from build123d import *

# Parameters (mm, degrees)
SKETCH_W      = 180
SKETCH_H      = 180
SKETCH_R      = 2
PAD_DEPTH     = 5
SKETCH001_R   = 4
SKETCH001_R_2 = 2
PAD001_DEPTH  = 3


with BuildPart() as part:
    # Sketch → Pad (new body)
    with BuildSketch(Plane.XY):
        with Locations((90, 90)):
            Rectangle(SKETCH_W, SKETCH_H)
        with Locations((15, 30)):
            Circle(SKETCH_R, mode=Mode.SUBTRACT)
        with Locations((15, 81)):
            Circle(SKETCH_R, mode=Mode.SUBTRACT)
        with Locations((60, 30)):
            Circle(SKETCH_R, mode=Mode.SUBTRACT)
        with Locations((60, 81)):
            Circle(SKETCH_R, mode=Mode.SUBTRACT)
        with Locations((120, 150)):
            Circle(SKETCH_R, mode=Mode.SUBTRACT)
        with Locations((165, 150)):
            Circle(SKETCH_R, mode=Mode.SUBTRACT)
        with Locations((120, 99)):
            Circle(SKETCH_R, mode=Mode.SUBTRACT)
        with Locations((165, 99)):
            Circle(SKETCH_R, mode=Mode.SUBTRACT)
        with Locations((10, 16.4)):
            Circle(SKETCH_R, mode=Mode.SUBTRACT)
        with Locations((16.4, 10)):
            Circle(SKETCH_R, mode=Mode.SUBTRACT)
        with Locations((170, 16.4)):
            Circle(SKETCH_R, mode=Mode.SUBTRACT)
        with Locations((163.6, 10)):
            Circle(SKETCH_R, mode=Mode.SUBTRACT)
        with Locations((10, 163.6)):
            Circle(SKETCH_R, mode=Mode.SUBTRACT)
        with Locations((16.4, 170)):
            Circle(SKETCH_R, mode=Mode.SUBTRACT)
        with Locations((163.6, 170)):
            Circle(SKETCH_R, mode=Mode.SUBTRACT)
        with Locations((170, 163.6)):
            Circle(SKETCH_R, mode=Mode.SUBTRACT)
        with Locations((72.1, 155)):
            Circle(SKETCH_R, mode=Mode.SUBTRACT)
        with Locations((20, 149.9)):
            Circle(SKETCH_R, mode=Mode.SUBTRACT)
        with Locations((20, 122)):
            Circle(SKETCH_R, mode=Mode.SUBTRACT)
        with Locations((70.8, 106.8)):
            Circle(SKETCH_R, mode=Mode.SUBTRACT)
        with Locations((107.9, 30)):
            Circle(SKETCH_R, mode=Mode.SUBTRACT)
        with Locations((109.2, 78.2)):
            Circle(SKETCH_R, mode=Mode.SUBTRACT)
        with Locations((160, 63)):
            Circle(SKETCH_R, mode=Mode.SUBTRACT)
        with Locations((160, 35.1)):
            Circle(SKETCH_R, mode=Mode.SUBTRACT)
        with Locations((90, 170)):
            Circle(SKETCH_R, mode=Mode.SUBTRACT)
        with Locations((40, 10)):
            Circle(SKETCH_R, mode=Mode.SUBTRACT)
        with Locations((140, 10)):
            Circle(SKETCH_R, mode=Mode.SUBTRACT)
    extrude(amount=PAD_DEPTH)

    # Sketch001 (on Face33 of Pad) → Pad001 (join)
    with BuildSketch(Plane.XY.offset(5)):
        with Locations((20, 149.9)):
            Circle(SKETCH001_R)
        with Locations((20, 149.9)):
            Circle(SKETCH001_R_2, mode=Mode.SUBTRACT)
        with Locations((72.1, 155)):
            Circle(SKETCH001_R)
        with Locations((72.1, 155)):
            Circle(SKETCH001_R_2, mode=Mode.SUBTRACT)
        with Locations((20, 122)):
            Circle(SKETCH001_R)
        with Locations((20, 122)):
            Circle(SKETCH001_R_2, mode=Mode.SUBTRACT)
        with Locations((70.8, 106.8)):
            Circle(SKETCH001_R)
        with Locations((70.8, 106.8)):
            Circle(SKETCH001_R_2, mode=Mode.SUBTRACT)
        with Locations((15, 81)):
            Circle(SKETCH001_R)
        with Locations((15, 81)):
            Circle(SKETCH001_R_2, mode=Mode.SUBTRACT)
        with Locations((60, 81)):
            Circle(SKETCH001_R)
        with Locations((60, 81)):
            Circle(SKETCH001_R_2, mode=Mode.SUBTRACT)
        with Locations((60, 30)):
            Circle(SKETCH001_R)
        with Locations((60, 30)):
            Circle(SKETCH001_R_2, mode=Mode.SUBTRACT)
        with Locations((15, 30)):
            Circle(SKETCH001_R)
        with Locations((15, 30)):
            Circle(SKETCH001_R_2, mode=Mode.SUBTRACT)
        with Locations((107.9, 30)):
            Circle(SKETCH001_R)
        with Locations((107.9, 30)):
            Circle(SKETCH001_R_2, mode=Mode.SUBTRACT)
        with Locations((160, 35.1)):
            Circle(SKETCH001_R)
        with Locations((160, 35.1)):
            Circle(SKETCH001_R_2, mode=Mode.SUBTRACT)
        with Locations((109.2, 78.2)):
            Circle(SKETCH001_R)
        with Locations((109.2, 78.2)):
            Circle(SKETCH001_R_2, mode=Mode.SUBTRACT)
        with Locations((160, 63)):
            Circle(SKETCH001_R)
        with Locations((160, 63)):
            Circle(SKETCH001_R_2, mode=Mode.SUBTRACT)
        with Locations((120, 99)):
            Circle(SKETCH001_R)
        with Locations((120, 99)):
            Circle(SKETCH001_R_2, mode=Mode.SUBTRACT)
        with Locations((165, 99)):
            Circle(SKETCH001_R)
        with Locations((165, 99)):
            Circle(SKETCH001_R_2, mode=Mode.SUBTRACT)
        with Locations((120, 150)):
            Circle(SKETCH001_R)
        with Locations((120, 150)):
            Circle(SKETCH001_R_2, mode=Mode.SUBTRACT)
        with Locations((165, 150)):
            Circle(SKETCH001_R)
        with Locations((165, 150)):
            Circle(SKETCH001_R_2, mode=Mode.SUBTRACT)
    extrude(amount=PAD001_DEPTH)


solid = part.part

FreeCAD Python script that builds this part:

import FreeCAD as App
import Part
import Sketcher

V = App.Vector
Q = App.Units.Quantity

doc = App.newDocument("Part")
body = doc.addObject("PartDesign::Body", "Body")

# Sketch on XY plane
sketch1 = body.newObject("Sketcher::SketchObject", "Sketch")
sketch1.AttachmentSupport = (doc.getObject("XY_Plane"), [""])
sketch1.MapMode = "FlatFace"
sketch1.addGeometry(Part.LineSegment(V(0, 180, 0), V(0, 0, 0)), False)
sketch1.addGeometry(Part.LineSegment(V(0, 0, 0), V(180, 0, 0)), False)
sketch1.addGeometry(Part.LineSegment(V(180, 0, 0), V(180, 180, 0)), False)
sketch1.addGeometry(Part.LineSegment(V(180, 180, 0), V(0, 180, 0)), False)
sketch1.addGeometry(Part.Circle(V(16.4, 10, 0), V(0, 0, 1), 2), False)
sketch1.addGeometry(Part.Circle(V(10, 16.4, 0), V(0, 0, 1), 2), False)
sketch1.addGeometry(Part.Circle(V(40, 10, 0), V(0, 0, 1), 2), False)
sketch1.addGeometry(Part.Circle(V(15, 30, 0), V(0, 0, 1), 2), False)
sketch1.addGeometry(Part.Circle(V(60, 30, 0), V(0, 0, 1), 2), False)
sketch1.addGeometry(Part.Circle(V(15, 81, 0), V(0, 0, 1), 2), False)
sketch1.addGeometry(Part.Circle(V(60, 81, 0), V(0, 0, 1), 2), False)
sketch1.addGeometry(Part.Circle(V(107.9, 30, 0), V(0, 0, 1), 2), False)
sketch1.addGeometry(Part.Circle(V(140, 10, 0), V(0, 0, 1), 2), False)
sketch1.addGeometry(Part.Circle(V(163.6, 10, 0), V(0, 0, 1), 2), False)
sketch1.addGeometry(Part.Circle(V(170, 16.4, 0), V(0, 0, 1), 2), False)
sketch1.addGeometry(Part.Circle(V(160, 35.1, 0), V(0, 0, 1), 2), False)
sketch1.addGeometry(Part.Circle(V(109.2, 78.2, 0), V(0, 0, 1), 2), False)
sketch1.addGeometry(Part.Circle(V(160, 63, 0), V(0, 0, 1), 2), False)
sketch1.addGeometry(Part.Circle(V(20, 122, 0), V(0, 0, 1), 2), False)
sketch1.addGeometry(Part.Circle(V(70.8, 106.8, 0), V(0, 0, 1), 2), False)
sketch1.addGeometry(Part.Circle(V(20, 149.9, 0), V(0, 0, 1), 2), False)
sketch1.addGeometry(Part.Circle(V(10, 163.6, 0), V(0, 0, 1), 2), False)
sketch1.addGeometry(Part.Circle(V(16.4, 170, 0), V(0, 0, 1), 2), False)
sketch1.addGeometry(Part.Circle(V(72.1, 155, 0), V(0, 0, 1), 2), False)
sketch1.addGeometry(Part.Circle(V(120, 99, 0), V(0, 0, 1), 2), False)
sketch1.addGeometry(Part.Circle(V(165, 99, 0), V(0, 0, 1), 2), False)
sketch1.addGeometry(Part.Circle(V(120, 150, 0), V(0, 0, 1), 2), False)
sketch1.addGeometry(Part.Circle(V(90, 170, 0), V(0, 0, 1), 2), False)
sketch1.addGeometry(Part.Circle(V(165, 150, 0), V(0, 0, 1), 2), False)
sketch1.addGeometry(Part.Circle(V(170, 163.6, 0), V(0, 0, 1), 2), False)
sketch1.addGeometry(Part.Circle(V(163.6, 170, 0), V(0, 0, 1), 2), False)
sketch1.addConstraint(Sketcher.Constraint("Coincident", 0, 2, 1, 1))
sketch1.addConstraint(Sketcher.Constraint("Coincident", 1, 2, 2, 1))
sketch1.addConstraint(Sketcher.Constraint("Coincident", 2, 2, 3, 1))
sketch1.addConstraint(Sketcher.Constraint("Coincident", 3, 2, 0, 1))
sketch1.addConstraint(Sketcher.Constraint("Vertical", 0))
sketch1.addConstraint(Sketcher.Constraint("Horizontal", 1))
sketch1.addConstraint(Sketcher.Constraint("Vertical", 2))
sketch1.addConstraint(Sketcher.Constraint("Horizontal", 3))
sketch1.addConstraint(Sketcher.Constraint("Coincident", 0, 2, -1, 1))
sketch1.addConstraint(Sketcher.Constraint("Equal", 4, 5))
sketch1.addConstraint(Sketcher.Constraint("Equal", 5, 6))
sketch1.addConstraint(Sketcher.Constraint("Equal", 6, 7))
sketch1.addConstraint(Sketcher.Constraint("Equal", 7, 8))
sketch1.addConstraint(Sketcher.Constraint("Equal", 8, 9))
sketch1.addConstraint(Sketcher.Constraint("Equal", 9, 10))
sketch1.addConstraint(Sketcher.Constraint("Equal", 10, 11))
sketch1.addConstraint(Sketcher.Constraint("Equal", 11, 12))
sketch1.addConstraint(Sketcher.Constraint("Equal", 12, 13))
sketch1.addConstraint(Sketcher.Constraint("Equal", 13, 14))
sketch1.addConstraint(Sketcher.Constraint("Equal", 14, 15))
sketch1.addConstraint(Sketcher.Constraint("Equal", 15, 16))
sketch1.addConstraint(Sketcher.Constraint("Equal", 16, 17))
sketch1.addConstraint(Sketcher.Constraint("Equal", 17, 18))
sketch1.addConstraint(Sketcher.Constraint("Equal", 18, 19))
sketch1.addConstraint(Sketcher.Constraint("Equal", 19, 20))
sketch1.addConstraint(Sketcher.Constraint("Equal", 20, 21))
sketch1.addConstraint(Sketcher.Constraint("Equal", 21, 22))
sketch1.addConstraint(Sketcher.Constraint("Equal", 22, 23))
sketch1.addConstraint(Sketcher.Constraint("Equal", 23, 24))
sketch1.addConstraint(Sketcher.Constraint("Equal", 24, 25))
sketch1.addConstraint(Sketcher.Constraint("Equal", 25, 26))
sketch1.addConstraint(Sketcher.Constraint("Equal", 26, 27))
sketch1.addConstraint(Sketcher.Constraint("Equal", 27, 28))
sketch1.addConstraint(Sketcher.Constraint("Equal", 28, 29))
sketch1.addConstraint(Sketcher.Constraint("Equal", 29, 30))
sketch1.addConstraint(Sketcher.Constraint("Horizontal", 4, 3, 6, 3))
sketch1.addConstraint(Sketcher.Constraint("Horizontal", 7, 3, 8, 3))
sketch1.addConstraint(Sketcher.Constraint("Horizontal", 9, 3, 10, 3))
sketch1.addConstraint(Sketcher.Constraint("Horizontal", 8, 3, 11, 3))
sketch1.addConstraint(Sketcher.Constraint("Horizontal", 6, 3, 12, 3))
sketch1.addConstraint(Sketcher.Constraint("Horizontal", 12, 3, 13, 3))
sketch1.addConstraint(Sketcher.Constraint("Horizontal", 5, 3, 14, 3))
sketch1.addConstraint(Sketcher.Constraint("Horizontal", 24, 3, 25, 3))
sketch1.addConstraint(Sketcher.Constraint("Horizontal", 22, 3, 27, 3))
sketch1.addConstraint(Sketcher.Constraint("Horizontal", 26, 3, 28, 3))
sketch1.addConstraint(Sketcher.Constraint("Horizontal", 21, 3, 29, 3))
sketch1.addConstraint(Sketcher.Constraint("Horizontal", 27, 3, 30, 3))
sketch1.addConstraint(Sketcher.Constraint("Vertical", 7, 3, 9, 3))
sketch1.addConstraint(Sketcher.Constraint("Vertical", 8, 3, 10, 3))
sketch1.addConstraint(Sketcher.Constraint("Vertical", 15, 3, 17, 3))
sketch1.addConstraint(Sketcher.Constraint("Vertical", 18, 3, 20, 3))
sketch1.addConstraint(Sketcher.Constraint("Vertical", 5, 3, 21, 3))
sketch1.addConstraint(Sketcher.Constraint("Vertical", 4, 3, 22, 3))
sketch1.addConstraint(Sketcher.Constraint("Vertical", 24, 3, 26, 3))
sketch1.addConstraint(Sketcher.Constraint("Vertical", 25, 3, 28, 3))
sketch1.addConstraint(Sketcher.Constraint("Vertical", 14, 3, 29, 3))
sketch1.addConstraint(Sketcher.Constraint("Vertical", 13, 3, 30, 3))
sketch1.addConstraint(Sketcher.Constraint("Equal", 3, 0))
sketch1.addConstraint(Sketcher.Constraint("Diameter", 4, Q("4 mm")))
sketch1.addConstraint(Sketcher.Constraint("DistanceX", 1, 1, 1, 2, Q("180 mm")))
sketch1.addConstraint(Sketcher.Constraint("DistanceY", -1, 1, 4, 3, Q("10 mm")))
sketch1.addConstraint(Sketcher.Constraint("DistanceX", -1, 1, 5, 3, Q("10 mm")))
sketch1.addConstraint(Sketcher.Constraint("DistanceX", -1, 1, 6, 3, Q("40 mm")))
sketch1.addConstraint(Sketcher.Constraint("DistanceX", -1, 1, 7, 3, Q("15 mm")))
sketch1.addConstraint(Sketcher.Constraint("DistanceY", -1, 1, 7, 3, Q("30 mm")))
sketch1.addConstraint(Sketcher.Constraint("DistanceX", -1, 1, 8, 3, Q("60 mm")))
sketch1.addConstraint(Sketcher.Constraint("DistanceY", -1, 1, 9, 3, Q("81 mm")))
sketch1.addConstraint(Sketcher.Constraint("DistanceX", -1, 1, 12, 3, Q("140 mm")))
sketch1.addConstraint(Sketcher.Constraint("DistanceX", -1, 1, 14, 3, Q("170 mm")))
sketch1.addConstraint(Sketcher.Constraint("DistanceX", -1, 1, 15, 3, Q("160 mm")))
sketch1.addConstraint(Sketcher.Constraint("DistanceY", -1, 1, 17, 3, Q("63 mm")))
sketch1.addConstraint(Sketcher.Constraint("DistanceX", -1, 1, 18, 3, Q("20 mm")))
sketch1.addConstraint(Sketcher.Constraint("DistanceY", -1, 1, 18, 3, Q("122 mm")))
sketch1.addConstraint(Sketcher.Constraint("DistanceY", -1, 1, 22, 3, Q("170 mm")))
sketch1.addConstraint(Sketcher.Constraint("DistanceY", -1, 1, 23, 3, Q("155 mm")))
sketch1.addConstraint(Sketcher.Constraint("DistanceX", -1, 1, 24, 3, Q("120 mm")))
sketch1.addConstraint(Sketcher.Constraint("DistanceY", -1, 1, 24, 3, Q("99 mm")))
sketch1.addConstraint(Sketcher.Constraint("DistanceX", -1, 1, 25, 3, Q("165 mm")))
sketch1.addConstraint(Sketcher.Constraint("DistanceY", -1, 1, 26, 3, Q("150 mm")))
sketch1.addConstraint(Sketcher.Constraint("DistanceX", -1, 1, 27, 3, Q("90 mm")))
sketch1.addConstraint(Sketcher.Constraint("DistanceX", -1, 1, 4, 3, Q("16.4 mm")))
sketch1.addConstraint(Sketcher.Constraint("DistanceY", -1, 1, 5, 3, Q("16.4 mm")))
sketch1.addConstraint(Sketcher.Constraint("DistanceX", -1, 1, 11, 3, Q("107.9 mm")))
sketch1.addConstraint(Sketcher.Constraint("DistanceX", -1, 1, 13, 3, Q("163.6 mm")))
sketch1.addConstraint(Sketcher.Constraint("DistanceY", -1, 1, 15, 3, Q("35.1 mm")))
sketch1.addConstraint(Sketcher.Constraint("DistanceX", -1, 1, 16, 3, Q("109.2 mm")))
sketch1.addConstraint(Sketcher.Constraint("DistanceY", -1, 1, 16, 3, Q("78.2 mm")))
sketch1.addConstraint(Sketcher.Constraint("DistanceX", -1, 1, 19, 3, Q("70.8 mm")))
sketch1.addConstraint(Sketcher.Constraint("DistanceY", -1, 1, 19, 3, Q("106.8 mm")))
sketch1.addConstraint(Sketcher.Constraint("DistanceY", -1, 1, 20, 3, Q("149.9 mm")))
sketch1.addConstraint(Sketcher.Constraint("DistanceY", -1, 1, 21, 3, Q("163.6 mm")))
sketch1.addConstraint(Sketcher.Constraint("DistanceX", -1, 1, 23, 3, Q("72.1 mm")))
pad1 = body.newObject("PartDesign::Pad", "Pad")
pad1.Profile = sketch1
pad1.Length = 5

# Sketch on XY plane
sketch2 = body.newObject("Sketcher::SketchObject", "Sketch001")
sketch2.AttachmentSupport = (doc.getObject("XY_Plane"), [""])
sketch2.MapMode = "FlatFace"
sketch2.AttachmentOffset = App.Placement(V(0, 0, 5), App.Rotation())
sketch2.addGeometry(Part.Circle(V(20, 149.9, 0), V(0, 0, 1), 4), False)
sketch2.addGeometry(Part.Circle(V(20, 149.9, 0), V(0, 0, 1), 2), False)
sketch2.addGeometry(Part.Circle(V(72.1, 155, 0), V(0, 0, 1), 4), False)
sketch2.addGeometry(Part.Circle(V(72.1, 155, 0), V(0, 0, 1), 2), False)
sketch2.addGeometry(Part.Circle(V(20, 122, 0), V(0, 0, 1), 4), False)
sketch2.addGeometry(Part.Circle(V(20, 122, 0), V(0, 0, 1), 2), False)
sketch2.addGeometry(Part.Circle(V(70.8, 106.8, 0), V(0, 0, 1), 4), False)
sketch2.addGeometry(Part.Circle(V(70.8, 106.8, 0), V(0, 0, 1), 2), False)
sketch2.addGeometry(Part.Circle(V(15, 81, 0), V(0, 0, 1), 4), False)
sketch2.addGeometry(Part.Circle(V(15, 81, 0), V(0, 0, 1), 2), False)
sketch2.addGeometry(Part.Circle(V(60, 81, 0), V(0, 0, 1), 4), False)
sketch2.addGeometry(Part.Circle(V(60, 81, 0), V(0, 0, 1), 2), False)
sketch2.addGeometry(Part.Circle(V(60, 30, 0), V(0, 0, 1), 4), False)
sketch2.addGeometry(Part.Circle(V(60, 30, 0), V(0, 0, 1), 2), False)
sketch2.addGeometry(Part.Circle(V(15, 30, 0), V(0, 0, 1), 4), False)
sketch2.addGeometry(Part.Circle(V(15, 30, 0), V(0, 0, 1), 2), False)
sketch2.addGeometry(Part.Circle(V(107.9, 30, 0), V(0, 0, 1), 4), False)
sketch2.addGeometry(Part.Circle(V(107.9, 30, 0), V(0, 0, 1), 2), False)
sketch2.addGeometry(Part.Circle(V(160, 35.1, 0), V(0, 0, 1), 4), False)
sketch2.addGeometry(Part.Circle(V(160, 35.1, 0), V(0, 0, 1), 2), False)
sketch2.addGeometry(Part.Circle(V(109.2, 78.2, 0), V(0, 0, 1), 4), False)
sketch2.addGeometry(Part.Circle(V(109.2, 78.2, 0), V(0, 0, 1), 2), False)
sketch2.addGeometry(Part.Circle(V(160, 63, 0), V(0, 0, 1), 4), False)
sketch2.addGeometry(Part.Circle(V(160, 63, 0), V(0, 0, 1), 2), False)
sketch2.addGeometry(Part.Circle(V(120, 99, 0), V(0, 0, 1), 4), False)
sketch2.addGeometry(Part.Circle(V(120, 99, 0), V(0, 0, 1), 2), False)
sketch2.addGeometry(Part.Circle(V(165, 99, 0), V(0, 0, 1), 4), False)
sketch2.addGeometry(Part.Circle(V(165, 99, 0), V(0, 0, 1), 2), False)
sketch2.addGeometry(Part.Circle(V(120, 150, 0), V(0, 0, 1), 4), False)
sketch2.addGeometry(Part.Circle(V(120, 150, 0), V(0, 0, 1), 2), False)
sketch2.addGeometry(Part.Circle(V(165, 150, 0), V(0, 0, 1), 4), False)
sketch2.addGeometry(Part.Circle(V(165, 150, 0), V(0, 0, 1), 2), False)
sketch2.addConstraint(Sketcher.Constraint("Coincident", 1, 3, 0, 3))
sketch2.addConstraint(Sketcher.Constraint("Coincident", 3, 3, 2, 3))
sketch2.addConstraint(Sketcher.Constraint("Coincident", 5, 3, 4, 3))
sketch2.addConstraint(Sketcher.Constraint("Coincident", 7, 3, 6, 3))
sketch2.addConstraint(Sketcher.Constraint("Coincident", 9, 3, 8, 3))
sketch2.addConstraint(Sketcher.Constraint("Coincident", 11, 3, 10, 3))
sketch2.addConstraint(Sketcher.Constraint("Coincident", 13, 3, 12, 3))
sketch2.addConstraint(Sketcher.Constraint("Coincident", 15, 3, 14, 3))
sketch2.addConstraint(Sketcher.Constraint("Coincident", 17, 3, 16, 3))
sketch2.addConstraint(Sketcher.Constraint("Coincident", 19, 3, 18, 3))
sketch2.addConstraint(Sketcher.Constraint("Coincident", 21, 3, 20, 3))
sketch2.addConstraint(Sketcher.Constraint("Coincident", 23, 3, 22, 3))
sketch2.addConstraint(Sketcher.Constraint("Coincident", 25, 3, 24, 3))
sketch2.addConstraint(Sketcher.Constraint("Coincident", 27, 3, 26, 3))
sketch2.addConstraint(Sketcher.Constraint("Coincident", 29, 3, 28, 3))
sketch2.addConstraint(Sketcher.Constraint("Coincident", 31, 3, 30, 3))
sketch2.addConstraint(Sketcher.Constraint("Equal", 0, 2))
sketch2.addConstraint(Sketcher.Constraint("Equal", 1, 3))
sketch2.addConstraint(Sketcher.Constraint("Equal", 2, 4))
sketch2.addConstraint(Sketcher.Constraint("Equal", 3, 5))
sketch2.addConstraint(Sketcher.Constraint("Equal", 4, 6))
sketch2.addConstraint(Sketcher.Constraint("Equal", 5, 7))
sketch2.addConstraint(Sketcher.Constraint("Equal", 6, 8))
sketch2.addConstraint(Sketcher.Constraint("Equal", 7, 9))
sketch2.addConstraint(Sketcher.Constraint("Equal", 8, 10))
sketch2.addConstraint(Sketcher.Constraint("Equal", 9, 11))
sketch2.addConstraint(Sketcher.Constraint("Equal", 10, 12))
sketch2.addConstraint(Sketcher.Constraint("Equal", 11, 13))
sketch2.addConstraint(Sketcher.Constraint("Equal", 12, 14))
sketch2.addConstraint(Sketcher.Constraint("Equal", 13, 15))
sketch2.addConstraint(Sketcher.Constraint("Equal", 14, 16))
sketch2.addConstraint(Sketcher.Constraint("Equal", 15, 17))
sketch2.addConstraint(Sketcher.Constraint("Equal", 16, 18))
sketch2.addConstraint(Sketcher.Constraint("Equal", 17, 19))
sketch2.addConstraint(Sketcher.Constraint("Equal", 18, 20))
sketch2.addConstraint(Sketcher.Constraint("Equal", 19, 21))
sketch2.addConstraint(Sketcher.Constraint("Equal", 20, 22))
sketch2.addConstraint(Sketcher.Constraint("Equal", 21, 23))
sketch2.addConstraint(Sketcher.Constraint("Equal", 22, 24))
sketch2.addConstraint(Sketcher.Constraint("Equal", 23, 25))
sketch2.addConstraint(Sketcher.Constraint("Equal", 24, 26))
sketch2.addConstraint(Sketcher.Constraint("Equal", 25, 27))
sketch2.addConstraint(Sketcher.Constraint("Equal", 26, 28))
sketch2.addConstraint(Sketcher.Constraint("Equal", 27, 29))
sketch2.addConstraint(Sketcher.Constraint("Equal", 28, 30))
sketch2.addConstraint(Sketcher.Constraint("Equal", 29, 31))
sketch2.addConstraint(Sketcher.Constraint("Horizontal", 9, 3, 10, 3))
sketch2.addConstraint(Sketcher.Constraint("Horizontal", 13, 3, 14, 3))
sketch2.addConstraint(Sketcher.Constraint("Horizontal", 15, 3, 16, 3))
sketch2.addConstraint(Sketcher.Constraint("Horizontal", 25, 3, 26, 3))
sketch2.addConstraint(Sketcher.Constraint("Horizontal", 29, 3, 30, 3))
sketch2.addConstraint(Sketcher.Constraint("Vertical", 1, 3, 4, 3))
sketch2.addConstraint(Sketcher.Constraint("Vertical", 11, 3, 12, 3))
sketch2.addConstraint(Sketcher.Constraint("Vertical", 9, 3, 14, 3))
sketch2.addConstraint(Sketcher.Constraint("Vertical", 19, 3, 22, 3))
sketch2.addConstraint(Sketcher.Constraint("Vertical", 25, 3, 28, 3))
sketch2.addConstraint(Sketcher.Constraint("Vertical", 27, 3, 30, 3))
sketch2.addConstraint(Sketcher.Constraint("Diameter", 0, Q("8 mm")))
sketch2.addConstraint(Sketcher.Constraint("Diameter", 1, Q("4 mm")))
sketch2.addConstraint(Sketcher.Constraint("DistanceX", -1, 1, 0, 3, Q("20 mm")))
sketch2.addConstraint(Sketcher.Constraint("DistanceY", -1, 1, 2, 3, Q("155 mm")))
sketch2.addConstraint(Sketcher.Constraint("DistanceY", -1, 1, 4, 3, Q("122 mm")))
sketch2.addConstraint(Sketcher.Constraint("DistanceX", -1, 1, 8, 3, Q("15 mm")))
sketch2.addConstraint(Sketcher.Constraint("DistanceY", -1, 1, 8, 3, Q("81 mm")))
sketch2.addConstraint(Sketcher.Constraint("DistanceX", -1, 1, 10, 3, Q("60 mm")))
sketch2.addConstraint(Sketcher.Constraint("DistanceY", -1, 1, 12, 3, Q("30 mm")))
sketch2.addConstraint(Sketcher.Constraint("DistanceX", -1, 1, 18, 3, Q("160 mm")))
sketch2.addConstraint(Sketcher.Constraint("DistanceY", -1, 1, 22, 3, Q("63 mm")))
sketch2.addConstraint(Sketcher.Constraint("DistanceX", -1, 1, 24, 3, Q("120 mm")))
sketch2.addConstraint(Sketcher.Constraint("DistanceY", -1, 1, 24, 3, Q("99 mm")))
sketch2.addConstraint(Sketcher.Constraint("DistanceX", -1, 1, 26, 3, Q("165 mm")))
sketch2.addConstraint(Sketcher.Constraint("DistanceY", -1, 1, 28, 3, Q("150 mm")))
sketch2.addConstraint(Sketcher.Constraint("DistanceY", -1, 1, 0, 3, Q("149.9 mm")))
sketch2.addConstraint(Sketcher.Constraint("DistanceX", -1, 1, 2, 3, Q("72.1 mm")))
sketch2.addConstraint(Sketcher.Constraint("DistanceX", -1, 1, 6, 3, Q("70.8 mm")))
sketch2.addConstraint(Sketcher.Constraint("DistanceY", -1, 1, 6, 3, Q("106.8 mm")))
sketch2.addConstraint(Sketcher.Constraint("DistanceX", -1, 1, 16, 3, Q("107.9 mm")))
sketch2.addConstraint(Sketcher.Constraint("DistanceY", -1, 1, 18, 3, Q("35.1 mm")))
sketch2.addConstraint(Sketcher.Constraint("DistanceX", -1, 1, 20, 3, Q("109.2 mm")))
sketch2.addConstraint(Sketcher.Constraint("DistanceY", -1, 1, 20, 3, Q("78.2 mm")))
pad2 = body.newObject("PartDesign::Pad", "Pad001")
pad2.Profile = sketch2
pad2.Length = 3

doc.recompute()
